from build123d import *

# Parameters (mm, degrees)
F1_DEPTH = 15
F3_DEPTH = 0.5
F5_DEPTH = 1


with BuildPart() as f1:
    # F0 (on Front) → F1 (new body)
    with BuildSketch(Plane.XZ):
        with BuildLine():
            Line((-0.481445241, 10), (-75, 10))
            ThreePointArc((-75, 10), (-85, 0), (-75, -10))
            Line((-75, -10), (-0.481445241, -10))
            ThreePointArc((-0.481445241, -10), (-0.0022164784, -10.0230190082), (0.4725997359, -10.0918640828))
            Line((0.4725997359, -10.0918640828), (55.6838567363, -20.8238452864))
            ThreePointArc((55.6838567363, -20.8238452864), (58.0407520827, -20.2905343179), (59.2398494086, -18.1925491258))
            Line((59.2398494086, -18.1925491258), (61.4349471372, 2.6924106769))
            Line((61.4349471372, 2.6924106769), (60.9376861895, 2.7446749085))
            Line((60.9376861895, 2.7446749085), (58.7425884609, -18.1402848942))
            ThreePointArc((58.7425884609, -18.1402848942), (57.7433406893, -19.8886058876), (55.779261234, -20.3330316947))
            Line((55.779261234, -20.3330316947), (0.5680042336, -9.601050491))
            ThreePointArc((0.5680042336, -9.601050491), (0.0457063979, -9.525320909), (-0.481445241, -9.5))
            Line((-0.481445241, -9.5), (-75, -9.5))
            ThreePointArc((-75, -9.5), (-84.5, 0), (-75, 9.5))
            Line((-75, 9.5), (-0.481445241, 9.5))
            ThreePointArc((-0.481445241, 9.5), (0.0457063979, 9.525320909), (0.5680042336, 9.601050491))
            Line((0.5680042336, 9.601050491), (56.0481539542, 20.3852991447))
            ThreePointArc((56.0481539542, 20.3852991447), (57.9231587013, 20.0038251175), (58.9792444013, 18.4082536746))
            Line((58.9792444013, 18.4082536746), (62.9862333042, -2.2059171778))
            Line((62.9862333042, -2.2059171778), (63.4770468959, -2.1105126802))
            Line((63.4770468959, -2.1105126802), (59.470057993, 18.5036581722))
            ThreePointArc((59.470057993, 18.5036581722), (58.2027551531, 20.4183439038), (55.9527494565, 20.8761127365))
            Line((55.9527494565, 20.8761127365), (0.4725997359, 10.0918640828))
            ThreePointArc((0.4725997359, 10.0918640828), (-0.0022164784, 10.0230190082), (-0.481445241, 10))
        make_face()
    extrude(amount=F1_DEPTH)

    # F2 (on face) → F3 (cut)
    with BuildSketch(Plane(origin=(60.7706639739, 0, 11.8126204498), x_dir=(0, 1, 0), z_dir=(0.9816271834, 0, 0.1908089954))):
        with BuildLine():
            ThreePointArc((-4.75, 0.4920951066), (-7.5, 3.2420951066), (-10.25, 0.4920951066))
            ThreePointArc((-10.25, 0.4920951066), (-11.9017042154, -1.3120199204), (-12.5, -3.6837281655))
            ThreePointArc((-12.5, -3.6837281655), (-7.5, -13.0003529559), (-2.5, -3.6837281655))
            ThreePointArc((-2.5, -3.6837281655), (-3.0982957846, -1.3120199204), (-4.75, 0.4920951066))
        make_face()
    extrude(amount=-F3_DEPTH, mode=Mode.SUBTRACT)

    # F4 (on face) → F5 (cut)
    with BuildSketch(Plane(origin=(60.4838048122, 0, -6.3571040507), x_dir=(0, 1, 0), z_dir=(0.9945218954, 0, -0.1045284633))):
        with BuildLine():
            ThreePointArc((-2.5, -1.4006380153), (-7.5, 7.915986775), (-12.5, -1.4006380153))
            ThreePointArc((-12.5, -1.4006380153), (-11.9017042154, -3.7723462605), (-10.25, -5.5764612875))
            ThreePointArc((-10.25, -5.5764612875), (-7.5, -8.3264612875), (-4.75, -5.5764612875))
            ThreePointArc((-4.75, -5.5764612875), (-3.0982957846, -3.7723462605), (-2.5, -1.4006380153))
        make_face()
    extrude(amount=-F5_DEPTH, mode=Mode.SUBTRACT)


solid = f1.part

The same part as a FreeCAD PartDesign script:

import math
import FreeCAD as App
import Part
import Sketcher
from FreeCAD import Vector
Q = App.Units.Quantity

doc = App.newDocument("Part")
body = doc.addObject("PartDesign::Body", "Body")

sketch1 = body.newObject("Sketcher::SketchObject", "Sketch")
sketch1.AttachmentSupport = (doc.getObject("XZ_Plane"), [""])
sketch1.MapMode = "FlatFace"
sketch1.addGeometry(Part.LineSegment(Vector(-0.5, 10, 0), Vector(-75, 10, 0)), False)
sketch1.addGeometry(Part.ArcOfCircle(Part.Circle(Vector(-75, 0, 0), Vector(0, 0, 1), 10), math.radians(90), math.radians(270)), False)
sketch1.addGeometry(Part.LineSegment(Vector(-75, -10, 0), Vector(-0.5, -10, 0)), False)
sketch1.addGeometry(Part.ArcOfCircle(Part.Circle(Vector(-0.5, -15, 0), Vector(0, 0, 1), 5), math.radians(79), math.radians(90)), False)
sketch1.addGeometry(Part.LineSegment(Vector(0.5, -10.1, 0), Vector(55.7, -20.8, 0)), False)
sketch1.addGeometry(Part.ArcOfCircle(Part.Circle(Vector(56.3, -17.9, 0), Vector(0, 0, 1), 3), math.radians(-101), math.radians(-6)), False)
sketch1.addGeometry(Part.LineSegment(Vector(59.2, -18.2, 0), Vector(61.4, 2.7, 0)), False)
sketch1.addGeometry(Part.LineSegment(Vector(61.4, 2.7, 0), Vector(60.9, 2.7, 0)), False)
sketch1.addGeometry(Part.LineSegment(Vector(60.9, 2.7, 0), Vector(58.7, -18.1, 0)), False)
sketch1.addGeometry(Part.ArcOfCircle(Part.Circle(Vector(56.3, -17.9, 0), Vector(0, 0, 1), 2.5), math.radians(-101), math.radians(-6)), False)
sketch1.addGeometry(Part.LineSegment(Vector(55.8, -20.3, 0), Vector(0.6, -9.6, 0)), False)
sketch1.addGeometry(Part.ArcOfCircle(Part.Circle(Vector(-0.5, -15, 0), Vector(0, 0, 1), 5.5), math.radians(79), math.radians(90)), False)
sketch1.addGeometry(Part.LineSegment(Vector(-0.5, -9.5, 0), Vector(-75, -9.5, 0)), False)
sketch1.addGeometry(Part.ArcOfCircle(Part.Circle(Vector(-75, 0, 0), Vector(0, 0, 1), 9.5), math.radians(90), math.radians(270)), False)
sketch1.addGeometry(Part.LineSegment(Vector(-75, 9.5, 0), Vector(-0.5, 9.5, 0)), False)
sketch1.addGeometry(Part.ArcOfCircle(Part.Circle(Vector(-0.5, 15, 0), Vector(0, 0, 1), 5.5), math.radians(-90), math.radians(-79)), False)
sketch1.addGeometry(Part.LineSegment(Vector(0.6, 9.6, 0), Vector(56, 20.4, 0)), False)
sketch1.addGeometry(Part.ArcOfCircle(Part.Circle(Vector(56.5, 17.9, 0), Vector(0, 0, 1), 2.5), math.radians(11), math.radians(101)), False)
sketch1.addGeometry(Part.LineSegment(Vector(59, 18.4, 0), Vector(63, -2.2, 0)), False)
sketch1.addGeometry(Part.LineSegment(Vector(63, -2.2, 0), Vector(63.5, -2.1, 0)), False)
sketch1.addGeometry(Part.LineSegment(Vector(63.5, -2.1, 0), Vector(59.5, 18.5, 0)), False)
sketch1.addGeometry(Part.ArcOfCircle(Part.Circle(Vector(56.5, 17.9, 0), Vector(0, 0, 1), 3), math.radians(11), math.radians(101)), False)
sketch1.addGeometry(Part.LineSegment(Vector(56, 20.9, 0), Vector(0.5, 10.1, 0)), False)
sketch1.addGeometry(Part.ArcOfCircle(Part.Circle(Vector(-0.5, 15, 0), Vector(0, 0, 1), 5), math.radians(-90), math.radians(-79)), False)
sketch1.addConstraint(Sketcher.Constraint("Tangent", 0, 2, 1, 1))
sketch1.addConstraint(Sketcher.Constraint("Tangent", 1, 2, 2, 1))
sketch1.addConstraint(Sketcher.Constraint("Tangent", 2, 2, 3, 2))
sketch1.addConstraint(Sketcher.Constraint("Tangent", 3, 1, 4, 1))
sketch1.addConstraint(Sketcher.Constraint("Tangent", 4, 2, 5, 1))
sketch1.addConstraint(Sketcher.Constraint("Tangent", 5, 2, 6, 1))
sketch1.addConstraint(Sketcher.Constraint("Coincident", 6, 2, 7, 1))
sketch1.addConstraint(Sketcher.Constraint("Coincident", 7, 2, 8, 1))
sketch1.addConstraint(Sketcher.Constraint("Tangent", 8, 2, 9, 2))
sketch1.addConstraint(Sketcher.Constraint("Tangent", 9, 1, 10, 1))
sketch1.addConstraint(Sketcher.Constraint("Tangent", 10, 2, 11, 1))
sketch1.addConstraint(Sketcher.Constraint("Tangent", 11, 2, 12, 1))
sketch1.addConstraint(Sketcher.Constraint("Tangent", 12, 2, 13, 2))
sketch1.addConstraint(Sketcher.Constraint("Tangent", 13, 1, 14, 1))
sketch1.addConstraint(Sketcher.Constraint("Tangent", 14, 2, 15, 1))
sketch1.addConstraint(Sketcher.Constraint("Tangent", 15, 2, 16, 1))
sketch1.addConstraint(Sketcher.Constraint("Tangent", 16, 2, 17, 2))
sketch1.addConstraint(Sketcher.Constraint("Tangent", 17, 1, 18, 1))
sketch1.addConstraint(Sketcher.Constraint("Coincident", 18, 2, 19, 1))
sketch1.addConstraint(Sketcher.Constraint("Coincident", 19, 2, 20, 1))
sketch1.addConstraint(Sketcher.Constraint("Tangent", 20, 2, 21, 1))
sketch1.addConstraint(Sketcher.Constraint("Tangent", 21, 2, 22, 1))
sketch1.addConstraint(Sketcher.Constraint("Tangent", 22, 2, 23, 2))
sketch1.addConstraint(Sketcher.Constraint("Tangent", 23, 1, 0, 1))
sketch1.addConstraint(Sketcher.Constraint("Horizontal", 0))
sketch1.addConstraint(Sketcher.Constraint("Horizontal", 2))
sketch1.addConstraint(Sketcher.Constraint("Horizontal", 12))
sketch1.addConstraint(Sketcher.Constraint("Horizontal", 14))
sketch1.addConstraint(Sketcher.Constraint("Coincident", 9, 3, 5, 3))
sketch1.addConstraint(Sketcher.Constraint("Coincident", 11, 3, 3, 3))
sketch1.addConstraint(Sketcher.Constraint("Coincident", 13, 3, 1, 3))
sketch1.addConstraint(Sketcher.Constraint("Coincident", 21, 3, 17, 3))
sketch1.addConstraint(Sketcher.Constraint("Coincident", 23, 3, 15, 3))
sketch1.addConstraint(Sketcher.Constraint("Equal", 11, 15))
sketch1.addConstraint(Sketcher.Constraint("Equal", 9, 17))
sketch1.addConstraint(Sketcher.Constraint("Equal", 5, 21))
sketch1.addConstraint(Sketcher.Constraint("Symmetric", 3, 3, 15, 3, -1))
sketch1.addConstraint(Sketcher.Constraint("Perpendicular", 6, 7))
sketch1.addConstraint(Sketcher.Constraint("Perpendicular", 7, 8))
sketch1.addConstraint(Sketcher.Constraint("Parallel", 4, 10))
sketch1.addConstraint(Sketcher.Constraint("Perpendicular", 16, 18))
sketch1.addConstraint(Sketcher.Constraint("Perpendicular", 18, 19))
sketch1.addConstraint(Sketcher.Constraint("Perpendicular", 19, 20))
sketch1.addConstraint(Sketcher.Constraint("Vertical", 10, 2, 15, 2))
sketch1.addConstraint(Sketcher.Constraint("Equal", 8, 18))
sketch1.addConstraint(Sketcher.Constraint("Radius", 1, 10.0))
sketch1.addConstraint(Sketcher.Constraint("Radius", 3, 5.0))
sketch1.addConstraint(Sketcher.Constraint("Radius", 5, 3.0))
sketch1.addConstraint(Sketcher.Constraint("Radius", 9, 2.5))
sketch1.addConstraint(Sketcher.Constraint("Angle", 4, Q("-11 deg")))
sketch1.addConstraint(Sketcher.Constraint("Angle", 6, Q("84 deg")))
sketch1.addConstraint(Sketcher.Constraint("Distance", 6, 21.0))
sketch1.addConstraint(Sketcher.Constraint("DistanceX", 1, 3, -1, 1, 75.0))
sketch1.addConstraint(Sketcher.Constraint("DistanceX", -1, 1, 3, 1, 0.4726))
sketch1.addConstraint(Sketcher.Constraint("DistanceY", -1, 1, 16, 2, 20.385299))
sketch1.addConstraint(Sketcher.Constraint("DistanceX", 6, 2, 19, 2, 2.0421))
pad1 = body.newObject("PartDesign::Pad", "Pad")
pad1.Profile = sketch1
pad1.Length = 15

sketch2 = body.newObject("Sketcher::SketchObject", "Sketch001")
sketch2.Placement = App.Placement(Vector(60.770664, 0, 11.81262), App.Rotation(Vector(0, 1, 0), Vector(-0.190808995, 0, 0.981627183), Vector(0.981627183, 0, 0.190808995), "ZXY"))
sketch2.addGeometry(Part.ArcOfCircle(Part.Circle(Vector(-7.5, 0.5, 0), Vector(0, 0, 1), 2.8), math.radians(0), math.radians(180)), False)
sketch2.addGeometry(Part.ArcOfCircle(Part.Circle(Vector(-7.5, -3.7, 0), Vector(0, 0, 1), 5), math.radians(123), math.radians(180)), False)
sketch2.addGeometry(Part.ArcOfCircle(Part.Circle(Vector(-7.5, -7, 0), Vector(0, 0, 1), 6), math.radians(146), math.radians(394)), False)
sketch2.addGeometry(Part.ArcOfCircle(Part.Circle(Vector(-7.5, -3.7, 0), Vector(0, 0, 1), 5), math.radians(0), math.radians(57)), False)
sketch2.addConstraint(Sketcher.Constraint("Coincident", 0, 2, 1, 1))
sketch2.addConstraint(Sketcher.Constraint("Coincident", 1, 2, 2, 1))
sketch2.addConstraint(Sketcher.Constraint("Coincident", 2, 2, 3, 1))
sketch2.addConstraint(Sketcher.Constraint("Coincident", 3, 2, 0, 1))
sketch2.addConstraint(Sketcher.Constraint("Coincident", 3, 3, 1, 3))
sketch2.addConstraint(Sketcher.Constraint("Equal", 1, 3))
sketch2.addConstraint(Sketcher.Constraint("Horizontal", 3, 3, 1, 2))
sketch2.addConstraint(Sketcher.Constraint("Horizontal", 1, 2, 2, 2))
sketch2.addConstraint(Sketcher.Constraint("Horizontal", 0, 2, 3, 2))
sketch2.addConstraint(Sketcher.Constraint("Radius", 1, 5.0))
sketch2.addConstraint(Sketcher.Constraint("Radius", 2, 6.0))
sketch2.addConstraint(Sketcher.Constraint("Radius", 0, 2.75))
sketch2.addConstraint(Sketcher.Constraint("DistanceX", 0, 3, -1, 1, 7.5))
sketch2.addConstraint(Sketcher.Constraint("DistanceY", 1, 3, -1, 1, 3.683728))
sketch2.addConstraint(Sketcher.Constraint("DistanceY", 2, 3, 0, 3, 7.492448))
pocket1 = body.newObject("PartDesign::Pocket", "Pocket")
pocket1.Profile = sketch2
pocket1.Length = 0.5

sketch3 = body.newObject("Sketcher::SketchObject", "Sketch002")
sketch3.Placement = App.Placement(Vector(60.483805, 0, -6.357104), App.Rotation(Vector(0, 1, 0), Vector(0.104528463, 0, 0.994521895), Vector(0.994521895, 0, -0.104528463), "ZXY"))
sketch3.addGeometry(Part.ArcOfCircle(Part.Circle(Vector(-7.5, 1.9, 0), Vector(0, 0, 1), 6), math.radians(-34), math.radians(214)), False)
sketch3.addGeometry(Part.ArcOfCircle(Part.Circle(Vector(-7.5, -1.4, 0), Vector(0, 0, 1), 5), math.radians(180), math.radians(237)), False)
sketch3.addGeometry(Part.ArcOfCircle(Part.Circle(Vector(-7.5, -5.6, 0), Vector(0, 0, 1), 2.8), math.radians(180), math.radians(360)), False)
sketch3.addGeometry(Part.ArcOfCircle(Part.Circle(Vector(-7.5, -1.4, 0), Vector(0, 0, 1), 5), math.radians(-57), math.radians(0)), False)
sketch3.addConstraint(Sketcher.Constraint("Coincident", 0, 2, 1, 1))
sketch3.addConstraint(Sketcher.Constraint("Coincident", 1, 2, 2, 1))
sketch3.addConstraint(Sketcher.Constraint("Coincident", 2, 2, 3, 1))
sketch3.addConstraint(Sketcher.Constraint("Coincident", 3, 2, 0, 1))
sketch3.addConstraint(Sketcher.Constraint("Coincident", 3, 3, 1, 3))
sketch3.addConstraint(Sketcher.Constraint("Equal", 1, 3))
sketch3.addConstraint(Sketcher.Constraint("Horizontal", 3, 3, 0, 2))
sketch3.addConstraint(Sketcher.Constraint("Horizontal", 2, 3, 1, 2))
sketch3.addConstraint(Sketcher.Constraint("Horizontal", 1, 2, 2, 2))
sketch3.addConstraint(Sketcher.Constraint("Horizontal", 0, 2, 3, 2))
sketch3.addConstraint(Sketcher.Constraint("Radius", 0, 6.0))
sketch3.addConstraint(Sketcher.Constraint("Radius", 1, 5.0))
sketch3.addConstraint(Sketcher.Constraint("Radius", 2, 2.75))
sketch3.addConstraint(Sketcher.Constraint("DistanceX", 0, 3, -1, 1, 7.5))
sketch3.addConstraint(Sketcher.Constraint("DistanceY", 1, 3, -1, 1, 1.400638))
pocket2 = body.newObject("PartDesign::Pocket", "Pocket001")
pocket2.Profile = sketch3
pocket2.Length = 1

doc.recompute()
